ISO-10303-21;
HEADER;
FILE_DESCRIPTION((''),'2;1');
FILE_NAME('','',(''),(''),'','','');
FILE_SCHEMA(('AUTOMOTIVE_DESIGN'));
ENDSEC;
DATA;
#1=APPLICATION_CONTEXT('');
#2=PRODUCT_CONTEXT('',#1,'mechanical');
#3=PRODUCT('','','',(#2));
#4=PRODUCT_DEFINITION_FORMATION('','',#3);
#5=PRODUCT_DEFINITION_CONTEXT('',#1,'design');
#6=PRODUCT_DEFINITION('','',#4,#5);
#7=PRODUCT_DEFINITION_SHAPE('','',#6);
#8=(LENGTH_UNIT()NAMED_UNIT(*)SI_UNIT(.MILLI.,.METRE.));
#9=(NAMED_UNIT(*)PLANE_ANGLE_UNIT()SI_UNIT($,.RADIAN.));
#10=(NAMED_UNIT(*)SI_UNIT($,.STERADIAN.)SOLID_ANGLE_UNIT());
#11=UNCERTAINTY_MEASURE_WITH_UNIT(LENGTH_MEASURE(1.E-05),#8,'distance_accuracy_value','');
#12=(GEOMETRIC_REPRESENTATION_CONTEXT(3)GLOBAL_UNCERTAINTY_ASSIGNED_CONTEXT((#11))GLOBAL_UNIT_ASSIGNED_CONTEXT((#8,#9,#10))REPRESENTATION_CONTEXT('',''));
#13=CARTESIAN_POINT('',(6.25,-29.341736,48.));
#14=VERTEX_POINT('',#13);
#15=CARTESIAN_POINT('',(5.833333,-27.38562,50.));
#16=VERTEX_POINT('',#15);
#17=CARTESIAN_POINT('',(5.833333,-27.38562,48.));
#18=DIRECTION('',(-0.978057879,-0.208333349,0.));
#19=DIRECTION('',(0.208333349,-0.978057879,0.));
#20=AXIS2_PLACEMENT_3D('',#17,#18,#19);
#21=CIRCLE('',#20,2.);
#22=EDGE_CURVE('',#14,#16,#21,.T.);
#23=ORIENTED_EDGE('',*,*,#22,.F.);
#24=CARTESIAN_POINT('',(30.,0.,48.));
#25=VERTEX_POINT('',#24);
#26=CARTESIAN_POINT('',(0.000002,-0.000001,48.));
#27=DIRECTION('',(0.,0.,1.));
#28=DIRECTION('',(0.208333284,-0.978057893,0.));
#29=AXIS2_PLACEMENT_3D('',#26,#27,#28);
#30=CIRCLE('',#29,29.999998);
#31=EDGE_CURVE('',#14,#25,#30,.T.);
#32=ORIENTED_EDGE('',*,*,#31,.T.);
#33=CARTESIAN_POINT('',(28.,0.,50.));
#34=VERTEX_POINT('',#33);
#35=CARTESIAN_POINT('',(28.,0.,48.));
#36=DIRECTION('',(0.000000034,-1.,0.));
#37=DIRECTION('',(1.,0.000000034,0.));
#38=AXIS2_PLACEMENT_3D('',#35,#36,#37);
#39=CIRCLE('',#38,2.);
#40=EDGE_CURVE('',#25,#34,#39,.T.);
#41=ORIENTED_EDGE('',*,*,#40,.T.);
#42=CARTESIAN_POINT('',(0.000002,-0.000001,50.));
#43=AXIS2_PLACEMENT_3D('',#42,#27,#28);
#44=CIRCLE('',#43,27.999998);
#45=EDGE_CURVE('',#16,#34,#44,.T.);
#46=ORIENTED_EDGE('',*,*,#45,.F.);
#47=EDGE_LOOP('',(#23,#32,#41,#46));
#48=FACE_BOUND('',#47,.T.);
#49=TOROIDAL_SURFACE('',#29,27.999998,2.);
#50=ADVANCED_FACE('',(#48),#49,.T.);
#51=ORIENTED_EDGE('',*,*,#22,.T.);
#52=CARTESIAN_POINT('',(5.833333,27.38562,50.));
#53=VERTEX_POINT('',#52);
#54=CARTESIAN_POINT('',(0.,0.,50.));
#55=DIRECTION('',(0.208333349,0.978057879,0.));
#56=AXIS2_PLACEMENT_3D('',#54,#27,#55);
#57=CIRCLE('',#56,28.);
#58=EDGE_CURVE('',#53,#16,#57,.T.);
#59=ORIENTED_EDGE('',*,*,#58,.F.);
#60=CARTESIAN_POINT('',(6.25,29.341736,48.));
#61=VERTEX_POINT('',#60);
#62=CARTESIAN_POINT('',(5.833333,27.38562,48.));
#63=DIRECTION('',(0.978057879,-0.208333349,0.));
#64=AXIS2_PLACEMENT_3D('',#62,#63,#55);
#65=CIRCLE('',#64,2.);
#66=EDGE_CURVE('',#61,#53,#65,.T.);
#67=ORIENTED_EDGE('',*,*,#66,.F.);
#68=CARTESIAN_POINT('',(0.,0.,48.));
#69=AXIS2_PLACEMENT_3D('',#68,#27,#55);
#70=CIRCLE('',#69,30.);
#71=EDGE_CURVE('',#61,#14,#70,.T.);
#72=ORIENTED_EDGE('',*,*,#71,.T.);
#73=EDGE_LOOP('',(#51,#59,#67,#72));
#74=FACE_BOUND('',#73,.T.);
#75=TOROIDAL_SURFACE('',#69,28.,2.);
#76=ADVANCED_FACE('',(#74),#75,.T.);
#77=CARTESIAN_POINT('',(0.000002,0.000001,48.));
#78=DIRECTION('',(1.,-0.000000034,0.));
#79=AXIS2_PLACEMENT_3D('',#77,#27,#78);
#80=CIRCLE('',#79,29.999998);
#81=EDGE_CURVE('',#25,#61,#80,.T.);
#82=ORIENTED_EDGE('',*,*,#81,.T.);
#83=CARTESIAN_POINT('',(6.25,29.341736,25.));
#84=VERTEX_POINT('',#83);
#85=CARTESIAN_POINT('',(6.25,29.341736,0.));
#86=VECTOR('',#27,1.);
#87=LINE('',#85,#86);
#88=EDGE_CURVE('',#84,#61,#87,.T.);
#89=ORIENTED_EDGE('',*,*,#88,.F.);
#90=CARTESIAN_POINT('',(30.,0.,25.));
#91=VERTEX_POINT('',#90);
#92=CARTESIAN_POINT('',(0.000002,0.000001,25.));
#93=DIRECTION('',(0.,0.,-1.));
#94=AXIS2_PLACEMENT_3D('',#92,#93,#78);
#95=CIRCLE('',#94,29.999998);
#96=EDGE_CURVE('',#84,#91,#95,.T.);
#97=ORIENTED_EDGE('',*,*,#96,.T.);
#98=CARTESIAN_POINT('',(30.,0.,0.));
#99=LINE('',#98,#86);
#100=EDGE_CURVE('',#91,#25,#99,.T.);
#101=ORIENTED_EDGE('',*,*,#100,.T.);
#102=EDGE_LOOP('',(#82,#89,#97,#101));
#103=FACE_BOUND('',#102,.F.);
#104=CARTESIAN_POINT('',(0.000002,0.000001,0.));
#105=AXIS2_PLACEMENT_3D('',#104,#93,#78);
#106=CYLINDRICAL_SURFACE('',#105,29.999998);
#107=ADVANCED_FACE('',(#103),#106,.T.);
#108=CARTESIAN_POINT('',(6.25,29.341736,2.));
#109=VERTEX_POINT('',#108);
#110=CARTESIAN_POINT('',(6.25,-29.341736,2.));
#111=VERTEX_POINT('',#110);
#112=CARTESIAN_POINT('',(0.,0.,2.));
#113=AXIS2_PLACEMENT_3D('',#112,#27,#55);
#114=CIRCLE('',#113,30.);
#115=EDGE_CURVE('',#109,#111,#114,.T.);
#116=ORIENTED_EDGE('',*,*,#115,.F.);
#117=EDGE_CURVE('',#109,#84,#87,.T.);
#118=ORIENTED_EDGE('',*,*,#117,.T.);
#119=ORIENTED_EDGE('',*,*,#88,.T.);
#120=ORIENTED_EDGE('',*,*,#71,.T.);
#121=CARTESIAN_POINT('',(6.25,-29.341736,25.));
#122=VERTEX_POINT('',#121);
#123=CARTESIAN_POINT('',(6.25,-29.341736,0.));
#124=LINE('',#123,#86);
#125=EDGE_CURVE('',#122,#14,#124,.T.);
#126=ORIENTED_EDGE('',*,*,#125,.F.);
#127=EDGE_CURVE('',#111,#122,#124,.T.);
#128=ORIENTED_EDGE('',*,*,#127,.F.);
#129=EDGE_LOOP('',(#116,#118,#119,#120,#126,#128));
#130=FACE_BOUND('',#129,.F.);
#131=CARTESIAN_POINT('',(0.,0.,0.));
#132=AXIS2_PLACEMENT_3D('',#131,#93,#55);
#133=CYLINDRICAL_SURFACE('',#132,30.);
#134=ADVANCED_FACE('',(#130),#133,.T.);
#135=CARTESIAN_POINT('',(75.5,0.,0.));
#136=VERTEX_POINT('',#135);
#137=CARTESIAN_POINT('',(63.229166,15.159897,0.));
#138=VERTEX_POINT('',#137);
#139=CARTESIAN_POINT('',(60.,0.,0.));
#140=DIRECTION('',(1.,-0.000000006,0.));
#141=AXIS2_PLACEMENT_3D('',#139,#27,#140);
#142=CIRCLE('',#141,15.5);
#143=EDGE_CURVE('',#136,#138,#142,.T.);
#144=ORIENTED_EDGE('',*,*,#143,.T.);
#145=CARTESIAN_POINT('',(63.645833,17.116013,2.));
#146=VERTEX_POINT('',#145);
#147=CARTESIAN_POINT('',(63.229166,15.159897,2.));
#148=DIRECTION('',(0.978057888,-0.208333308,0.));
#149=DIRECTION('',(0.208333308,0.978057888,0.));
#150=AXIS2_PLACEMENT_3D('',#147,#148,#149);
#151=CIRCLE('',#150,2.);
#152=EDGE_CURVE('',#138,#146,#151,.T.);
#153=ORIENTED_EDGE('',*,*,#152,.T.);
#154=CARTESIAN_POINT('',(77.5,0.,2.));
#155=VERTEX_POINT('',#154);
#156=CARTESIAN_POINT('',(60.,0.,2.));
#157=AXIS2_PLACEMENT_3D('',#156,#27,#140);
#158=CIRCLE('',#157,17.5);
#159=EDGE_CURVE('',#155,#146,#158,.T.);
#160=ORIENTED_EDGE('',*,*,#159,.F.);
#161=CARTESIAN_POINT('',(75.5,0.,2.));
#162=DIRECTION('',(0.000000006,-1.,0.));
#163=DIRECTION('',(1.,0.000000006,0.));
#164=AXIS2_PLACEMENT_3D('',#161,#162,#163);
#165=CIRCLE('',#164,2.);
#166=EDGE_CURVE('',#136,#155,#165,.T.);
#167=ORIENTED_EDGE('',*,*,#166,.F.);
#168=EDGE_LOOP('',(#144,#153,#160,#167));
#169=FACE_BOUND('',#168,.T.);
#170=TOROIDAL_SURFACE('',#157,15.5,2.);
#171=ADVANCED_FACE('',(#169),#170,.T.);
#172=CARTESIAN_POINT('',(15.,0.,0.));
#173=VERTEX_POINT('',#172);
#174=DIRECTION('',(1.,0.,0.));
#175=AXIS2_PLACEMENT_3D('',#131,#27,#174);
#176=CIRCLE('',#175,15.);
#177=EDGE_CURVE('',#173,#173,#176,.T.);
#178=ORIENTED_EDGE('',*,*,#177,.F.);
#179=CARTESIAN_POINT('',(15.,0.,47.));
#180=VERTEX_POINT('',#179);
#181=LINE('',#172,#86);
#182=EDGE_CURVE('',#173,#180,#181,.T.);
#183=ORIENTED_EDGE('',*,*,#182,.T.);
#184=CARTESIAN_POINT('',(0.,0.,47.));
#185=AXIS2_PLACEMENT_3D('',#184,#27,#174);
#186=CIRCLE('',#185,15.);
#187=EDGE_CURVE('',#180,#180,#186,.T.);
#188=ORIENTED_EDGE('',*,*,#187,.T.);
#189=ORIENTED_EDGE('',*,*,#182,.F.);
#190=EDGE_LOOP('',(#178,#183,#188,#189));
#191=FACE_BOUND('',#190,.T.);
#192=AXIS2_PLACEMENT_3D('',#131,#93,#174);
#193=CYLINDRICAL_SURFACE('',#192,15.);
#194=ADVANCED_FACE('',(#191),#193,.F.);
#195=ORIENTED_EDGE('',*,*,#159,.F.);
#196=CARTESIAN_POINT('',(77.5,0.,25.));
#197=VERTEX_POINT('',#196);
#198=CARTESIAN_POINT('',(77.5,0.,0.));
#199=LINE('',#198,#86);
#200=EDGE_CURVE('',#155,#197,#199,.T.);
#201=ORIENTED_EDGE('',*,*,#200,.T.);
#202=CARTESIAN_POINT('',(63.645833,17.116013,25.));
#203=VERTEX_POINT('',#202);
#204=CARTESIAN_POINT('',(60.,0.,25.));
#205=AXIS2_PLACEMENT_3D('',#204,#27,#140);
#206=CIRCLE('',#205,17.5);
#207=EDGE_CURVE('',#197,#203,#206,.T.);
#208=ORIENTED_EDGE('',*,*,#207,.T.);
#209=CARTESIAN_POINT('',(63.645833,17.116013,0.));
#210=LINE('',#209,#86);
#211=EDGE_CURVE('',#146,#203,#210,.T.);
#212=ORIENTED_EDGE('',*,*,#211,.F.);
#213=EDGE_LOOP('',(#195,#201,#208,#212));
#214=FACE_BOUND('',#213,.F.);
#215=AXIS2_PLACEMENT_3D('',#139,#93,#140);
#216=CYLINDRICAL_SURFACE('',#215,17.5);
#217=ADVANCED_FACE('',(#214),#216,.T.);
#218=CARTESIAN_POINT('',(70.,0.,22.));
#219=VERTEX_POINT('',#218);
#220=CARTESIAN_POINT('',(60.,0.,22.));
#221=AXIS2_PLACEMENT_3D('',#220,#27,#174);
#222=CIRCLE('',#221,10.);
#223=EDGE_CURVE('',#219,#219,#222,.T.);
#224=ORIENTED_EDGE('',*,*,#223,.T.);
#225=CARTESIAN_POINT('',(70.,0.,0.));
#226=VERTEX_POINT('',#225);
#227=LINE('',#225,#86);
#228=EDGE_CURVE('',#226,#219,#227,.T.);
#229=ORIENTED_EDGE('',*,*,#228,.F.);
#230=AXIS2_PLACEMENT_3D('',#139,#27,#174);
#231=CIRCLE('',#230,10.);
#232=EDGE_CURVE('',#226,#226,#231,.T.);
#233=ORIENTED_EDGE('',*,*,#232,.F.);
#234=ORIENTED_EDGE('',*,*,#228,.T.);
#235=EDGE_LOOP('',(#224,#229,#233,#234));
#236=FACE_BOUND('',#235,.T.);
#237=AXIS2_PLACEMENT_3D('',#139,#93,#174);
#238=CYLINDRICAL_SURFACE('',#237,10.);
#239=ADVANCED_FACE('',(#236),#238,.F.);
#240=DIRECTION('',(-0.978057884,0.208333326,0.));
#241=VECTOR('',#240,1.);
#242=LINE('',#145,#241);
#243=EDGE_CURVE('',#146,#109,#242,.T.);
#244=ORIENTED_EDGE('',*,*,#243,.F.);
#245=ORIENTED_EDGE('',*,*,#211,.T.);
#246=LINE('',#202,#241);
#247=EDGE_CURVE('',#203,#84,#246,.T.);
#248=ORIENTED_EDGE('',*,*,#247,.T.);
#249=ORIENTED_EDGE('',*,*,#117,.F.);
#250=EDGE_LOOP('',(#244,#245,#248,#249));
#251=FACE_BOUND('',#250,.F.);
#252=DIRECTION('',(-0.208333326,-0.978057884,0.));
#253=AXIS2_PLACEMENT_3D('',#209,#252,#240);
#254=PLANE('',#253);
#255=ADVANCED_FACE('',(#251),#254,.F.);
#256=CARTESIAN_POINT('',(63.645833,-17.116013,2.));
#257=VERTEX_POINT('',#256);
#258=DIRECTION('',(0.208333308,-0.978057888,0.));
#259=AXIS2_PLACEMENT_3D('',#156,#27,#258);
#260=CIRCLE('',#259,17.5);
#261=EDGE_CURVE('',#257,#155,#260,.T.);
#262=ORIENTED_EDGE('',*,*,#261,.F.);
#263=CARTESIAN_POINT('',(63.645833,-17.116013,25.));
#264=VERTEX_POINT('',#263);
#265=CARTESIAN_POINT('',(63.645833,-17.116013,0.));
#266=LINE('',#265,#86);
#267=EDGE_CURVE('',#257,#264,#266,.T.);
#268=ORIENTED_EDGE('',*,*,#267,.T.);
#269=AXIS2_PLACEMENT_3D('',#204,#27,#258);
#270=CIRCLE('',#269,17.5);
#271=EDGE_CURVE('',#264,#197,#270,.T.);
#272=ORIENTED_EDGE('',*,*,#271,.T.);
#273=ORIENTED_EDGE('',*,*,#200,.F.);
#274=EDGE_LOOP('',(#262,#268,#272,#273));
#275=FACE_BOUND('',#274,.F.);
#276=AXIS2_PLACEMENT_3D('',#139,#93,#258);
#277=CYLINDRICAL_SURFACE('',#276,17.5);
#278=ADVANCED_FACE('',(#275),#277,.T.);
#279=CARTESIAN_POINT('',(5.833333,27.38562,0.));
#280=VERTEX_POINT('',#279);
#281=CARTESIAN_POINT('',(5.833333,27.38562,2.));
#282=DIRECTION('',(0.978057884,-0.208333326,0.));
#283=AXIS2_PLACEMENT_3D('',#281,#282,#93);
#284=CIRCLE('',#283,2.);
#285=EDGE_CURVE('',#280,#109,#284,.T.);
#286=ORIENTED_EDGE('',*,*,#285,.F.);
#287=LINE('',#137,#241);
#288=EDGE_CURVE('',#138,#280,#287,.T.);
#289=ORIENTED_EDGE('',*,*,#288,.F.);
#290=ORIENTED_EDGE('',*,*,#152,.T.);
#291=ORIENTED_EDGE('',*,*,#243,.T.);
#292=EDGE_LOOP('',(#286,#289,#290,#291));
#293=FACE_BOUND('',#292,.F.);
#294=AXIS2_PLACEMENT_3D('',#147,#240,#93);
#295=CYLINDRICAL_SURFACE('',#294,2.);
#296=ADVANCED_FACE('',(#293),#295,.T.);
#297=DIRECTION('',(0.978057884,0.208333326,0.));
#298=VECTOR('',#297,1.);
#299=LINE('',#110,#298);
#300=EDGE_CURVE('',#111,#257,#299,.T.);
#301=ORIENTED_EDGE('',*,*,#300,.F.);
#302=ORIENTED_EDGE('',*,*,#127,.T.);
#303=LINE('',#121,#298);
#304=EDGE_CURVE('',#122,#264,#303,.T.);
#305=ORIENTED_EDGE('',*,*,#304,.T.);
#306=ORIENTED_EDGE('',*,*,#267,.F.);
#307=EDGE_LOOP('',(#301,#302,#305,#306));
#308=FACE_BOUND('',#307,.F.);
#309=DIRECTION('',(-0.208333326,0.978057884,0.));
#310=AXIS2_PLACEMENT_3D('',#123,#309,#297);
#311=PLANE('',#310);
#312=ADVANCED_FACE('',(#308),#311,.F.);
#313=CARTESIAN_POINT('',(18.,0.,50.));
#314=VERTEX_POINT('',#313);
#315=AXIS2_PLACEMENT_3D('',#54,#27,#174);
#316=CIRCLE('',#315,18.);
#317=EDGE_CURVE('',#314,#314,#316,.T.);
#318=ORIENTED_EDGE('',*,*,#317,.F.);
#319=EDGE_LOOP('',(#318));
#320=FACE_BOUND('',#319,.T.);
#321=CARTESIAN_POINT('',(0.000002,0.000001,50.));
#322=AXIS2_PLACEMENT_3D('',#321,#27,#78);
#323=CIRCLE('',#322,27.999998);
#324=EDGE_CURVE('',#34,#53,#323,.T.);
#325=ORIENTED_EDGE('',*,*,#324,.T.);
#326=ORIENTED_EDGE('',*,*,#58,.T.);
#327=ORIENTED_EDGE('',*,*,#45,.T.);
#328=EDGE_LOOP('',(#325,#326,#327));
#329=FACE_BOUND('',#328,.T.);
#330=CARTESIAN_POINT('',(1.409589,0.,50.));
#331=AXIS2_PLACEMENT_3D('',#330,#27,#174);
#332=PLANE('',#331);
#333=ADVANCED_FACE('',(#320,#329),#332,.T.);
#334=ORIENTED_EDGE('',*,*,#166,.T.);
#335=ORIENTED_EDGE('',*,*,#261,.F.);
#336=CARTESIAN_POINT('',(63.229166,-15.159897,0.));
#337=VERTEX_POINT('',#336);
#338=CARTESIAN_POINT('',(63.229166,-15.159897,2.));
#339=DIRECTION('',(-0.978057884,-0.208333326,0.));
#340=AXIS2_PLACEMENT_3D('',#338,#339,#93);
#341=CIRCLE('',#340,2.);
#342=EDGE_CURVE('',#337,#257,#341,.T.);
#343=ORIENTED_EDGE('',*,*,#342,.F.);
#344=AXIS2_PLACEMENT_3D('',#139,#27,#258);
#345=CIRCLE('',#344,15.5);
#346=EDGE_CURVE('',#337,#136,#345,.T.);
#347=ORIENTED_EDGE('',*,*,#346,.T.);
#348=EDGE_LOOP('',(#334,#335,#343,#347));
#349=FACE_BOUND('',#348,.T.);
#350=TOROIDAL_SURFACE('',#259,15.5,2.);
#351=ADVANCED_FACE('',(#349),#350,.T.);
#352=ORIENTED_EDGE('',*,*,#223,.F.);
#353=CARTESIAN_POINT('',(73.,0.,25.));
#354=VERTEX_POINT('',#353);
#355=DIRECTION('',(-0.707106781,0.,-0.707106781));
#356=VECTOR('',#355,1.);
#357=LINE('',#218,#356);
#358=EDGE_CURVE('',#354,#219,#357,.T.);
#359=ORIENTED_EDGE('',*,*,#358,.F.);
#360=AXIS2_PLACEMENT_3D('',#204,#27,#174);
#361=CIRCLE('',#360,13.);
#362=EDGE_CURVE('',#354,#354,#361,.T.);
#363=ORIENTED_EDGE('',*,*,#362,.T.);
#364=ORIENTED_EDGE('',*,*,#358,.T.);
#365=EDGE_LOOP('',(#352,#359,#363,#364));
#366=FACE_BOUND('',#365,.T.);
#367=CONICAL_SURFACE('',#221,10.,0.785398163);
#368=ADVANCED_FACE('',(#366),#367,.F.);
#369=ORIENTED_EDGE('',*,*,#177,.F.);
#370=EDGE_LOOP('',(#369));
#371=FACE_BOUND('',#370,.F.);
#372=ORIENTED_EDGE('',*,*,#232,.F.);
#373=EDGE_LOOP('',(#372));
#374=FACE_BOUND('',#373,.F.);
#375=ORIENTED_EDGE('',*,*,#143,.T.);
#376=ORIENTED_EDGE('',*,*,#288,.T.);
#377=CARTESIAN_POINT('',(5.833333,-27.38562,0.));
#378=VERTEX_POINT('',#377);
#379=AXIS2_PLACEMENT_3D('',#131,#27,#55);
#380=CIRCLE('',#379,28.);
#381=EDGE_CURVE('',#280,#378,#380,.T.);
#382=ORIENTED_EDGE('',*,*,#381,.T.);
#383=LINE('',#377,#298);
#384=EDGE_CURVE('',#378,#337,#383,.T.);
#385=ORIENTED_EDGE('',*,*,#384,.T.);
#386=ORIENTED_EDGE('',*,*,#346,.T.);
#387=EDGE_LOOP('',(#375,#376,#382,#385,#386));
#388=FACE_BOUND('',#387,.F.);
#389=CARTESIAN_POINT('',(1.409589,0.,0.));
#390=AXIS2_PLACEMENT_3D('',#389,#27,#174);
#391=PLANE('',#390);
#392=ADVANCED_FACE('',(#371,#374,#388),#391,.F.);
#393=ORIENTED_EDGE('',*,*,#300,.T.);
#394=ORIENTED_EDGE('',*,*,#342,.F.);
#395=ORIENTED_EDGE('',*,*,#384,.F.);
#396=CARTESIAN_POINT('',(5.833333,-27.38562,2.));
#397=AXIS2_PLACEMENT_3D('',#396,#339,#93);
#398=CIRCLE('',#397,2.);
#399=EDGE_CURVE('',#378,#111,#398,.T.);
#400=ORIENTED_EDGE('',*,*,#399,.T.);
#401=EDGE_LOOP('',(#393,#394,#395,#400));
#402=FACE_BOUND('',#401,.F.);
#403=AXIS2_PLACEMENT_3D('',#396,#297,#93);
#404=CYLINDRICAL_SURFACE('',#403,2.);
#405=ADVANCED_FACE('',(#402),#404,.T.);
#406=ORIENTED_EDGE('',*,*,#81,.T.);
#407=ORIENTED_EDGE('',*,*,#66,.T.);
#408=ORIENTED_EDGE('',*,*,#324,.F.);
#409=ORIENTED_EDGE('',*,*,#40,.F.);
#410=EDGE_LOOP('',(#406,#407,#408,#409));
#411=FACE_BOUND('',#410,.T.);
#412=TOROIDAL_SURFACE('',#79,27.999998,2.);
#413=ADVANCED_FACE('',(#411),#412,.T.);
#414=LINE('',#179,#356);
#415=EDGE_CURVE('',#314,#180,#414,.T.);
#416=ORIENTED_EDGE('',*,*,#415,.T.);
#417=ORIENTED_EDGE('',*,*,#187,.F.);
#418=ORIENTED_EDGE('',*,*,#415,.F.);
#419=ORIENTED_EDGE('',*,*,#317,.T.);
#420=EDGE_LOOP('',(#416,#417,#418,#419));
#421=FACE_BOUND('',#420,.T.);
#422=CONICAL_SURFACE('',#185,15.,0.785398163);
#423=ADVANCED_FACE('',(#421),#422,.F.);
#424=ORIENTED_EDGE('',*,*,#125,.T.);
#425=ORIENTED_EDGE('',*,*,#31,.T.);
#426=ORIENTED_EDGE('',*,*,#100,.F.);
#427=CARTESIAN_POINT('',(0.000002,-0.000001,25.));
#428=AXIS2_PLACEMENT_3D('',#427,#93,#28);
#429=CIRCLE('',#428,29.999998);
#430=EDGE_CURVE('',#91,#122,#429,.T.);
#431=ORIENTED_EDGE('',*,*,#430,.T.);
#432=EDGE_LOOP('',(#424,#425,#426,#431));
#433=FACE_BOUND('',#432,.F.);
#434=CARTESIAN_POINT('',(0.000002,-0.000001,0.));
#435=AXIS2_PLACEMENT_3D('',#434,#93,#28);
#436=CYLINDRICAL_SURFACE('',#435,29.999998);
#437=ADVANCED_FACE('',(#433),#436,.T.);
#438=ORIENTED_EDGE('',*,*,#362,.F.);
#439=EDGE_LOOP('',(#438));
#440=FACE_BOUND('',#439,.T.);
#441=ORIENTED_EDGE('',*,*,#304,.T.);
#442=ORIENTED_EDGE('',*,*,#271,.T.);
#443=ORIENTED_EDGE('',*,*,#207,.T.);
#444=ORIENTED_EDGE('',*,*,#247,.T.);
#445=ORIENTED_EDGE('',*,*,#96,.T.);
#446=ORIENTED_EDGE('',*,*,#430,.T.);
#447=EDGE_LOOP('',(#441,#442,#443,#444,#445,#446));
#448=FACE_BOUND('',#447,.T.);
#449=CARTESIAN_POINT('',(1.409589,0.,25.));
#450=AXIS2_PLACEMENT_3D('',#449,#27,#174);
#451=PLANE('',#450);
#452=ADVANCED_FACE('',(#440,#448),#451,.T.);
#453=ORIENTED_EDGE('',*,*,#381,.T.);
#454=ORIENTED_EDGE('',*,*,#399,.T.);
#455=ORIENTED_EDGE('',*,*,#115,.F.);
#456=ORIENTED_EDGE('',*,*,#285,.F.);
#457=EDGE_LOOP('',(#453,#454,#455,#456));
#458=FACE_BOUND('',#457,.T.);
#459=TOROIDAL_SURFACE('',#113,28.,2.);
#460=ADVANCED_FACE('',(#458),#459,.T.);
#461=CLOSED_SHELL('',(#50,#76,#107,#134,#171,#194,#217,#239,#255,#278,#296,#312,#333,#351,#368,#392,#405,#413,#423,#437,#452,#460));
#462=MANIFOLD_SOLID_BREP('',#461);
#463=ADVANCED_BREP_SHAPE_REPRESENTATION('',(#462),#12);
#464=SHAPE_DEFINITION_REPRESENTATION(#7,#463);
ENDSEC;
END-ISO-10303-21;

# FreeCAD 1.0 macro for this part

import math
import FreeCAD as App
import Part
import Sketcher

V = App.Vector


def edges_at(feature, points):
    """Names of the edges that pass closest to the given points."""
    edges = feature.Shape.Edges
    near = lambda p: min(range(len(edges)), key=lambda i: edges[i].distToShape(Part.Vertex(*p))[0])
    return sorted({f"Edge{near(p) + 1}" for p in points})

doc = App.newDocument("Part")
body = doc.addObject("PartDesign::Body", "Body")

sketch1 = doc.addObject("Sketcher::SketchObject", "Sketch")
body.addObject(sketch1)
sketch1.AttachmentSupport = (doc.XY_Plane, [""])
sketch1.MapMode = "FlatFace"
sketch1.addGeometry(Part.ArcOfCircle(Part.Circle(V(0, 0, 0), V(0, 0, 1), 30), math.radians(77.9753), math.radians(282.0247)), False)
sketch1.addGeometry(Part.LineSegment(V(6.25, -29.341736, 0), V(63.645833, -17.116013, 0)), False)
sketch1.addGeometry(Part.ArcOfCircle(Part.Circle(V(60, 0, 0), V(0, 0, 1), 17.5), math.radians(-77.975302), math.radians(0)), False)
sketch1.addGeometry(Part.ArcOfCircle(Part.Circle(V(60, 0, 0), V(0, 0, 1), 17.5), math.radians(0), math.radians(77.975302)), False)
sketch1.addGeometry(Part.LineSegment(V(63.645833, 17.116013, 0), V(6.25, 29.341736, 0)), False)
sketch1.addGeometry(Part.Circle(V(0, 0, 0), V(0, 0, 1), 15), False)
sketch1.addGeometry(Part.Circle(V(60, 0, 0), V(0, 0, 1), 10), False)
sketch1.addConstraint(Sketcher.Constraint("Tangent", 0, 2, 1, 1))
sketch1.addConstraint(Sketcher.Constraint("Tangent", 1, 2, 2, 1))
sketch1.addConstraint(Sketcher.Constraint("Tangent", 2, 2, 3, 1))
sketch1.addConstraint(Sketcher.Constraint("Tangent", 3, 2, 4, 1))
sketch1.addConstraint(Sketcher.Constraint("Tangent", 4, 2, 0, 1))
sketch1.addConstraint(Sketcher.Constraint("Coincident", 0, 3, -1, 1))
sketch1.addConstraint(Sketcher.Constraint("Coincident", 5, 3, -1, 1))
sketch1.addConstraint(Sketcher.Constraint("Coincident", 6, 3, 2, 3))
sketch1.addConstraint(Sketcher.Constraint("Equal", 2, 3))
sketch1.addConstraint(Sketcher.Constraint("PointOnObject", 2, 3, -1))
sketch1.addConstraint(Sketcher.Constraint("PointOnObject", 2, 2, -1))
sketch1.addConstraint(Sketcher.Constraint("Diameter", 5, 30.0))
sketch1.addConstraint(Sketcher.Constraint("Diameter", 6, 20.0))
sketch1.addConstraint(Sketcher.Constraint("Radius", 0, 30.0))
sketch1.addConstraint(Sketcher.Constraint("Radius", 2, 17.5))
sketch1.addConstraint(Sketcher.Constraint("DistanceX", -1, 1, 2, 3, 60.0))
pad1 = doc.addObject("PartDesign::Pad", "Pad")
body.addObject(pad1)
pad1.Profile = sketch1
pad1.Length = 25

sketch2 = doc.addObject("Sketcher::SketchObject", "Sketch001")
body.addObject(sketch2)
sketch2.AttachmentSupport = (doc.XY_Plane, [""])
sketch2.MapMode = "FlatFace"
sketch2.addGeometry(Part.ArcOfCircle(Part.Circle(V(0.000002, -0.000001, 0), V(0, 0, 1), 29.999998), math.radians(-77.975304), math.radians(0.000002)), False)
sketch2.addGeometry(Part.ArcOfCircle(Part.Circle(V(0.000002, 0.000001, 0), V(0, 0, 1), 29.999998), math.radians(-0.000002), math.radians(77.975304)), False)
sketch2.addGeometry(Part.ArcOfCircle(Part.Circle(V(0, 0, 0), V(0, 0, 1), 30), math.radians(77.9753), math.radians(282.0247)), False)
sketch2.addGeometry(Part.Circle(V(0, 0, 0), V(0, 0, 1), 15), False)
sketch2.addConstraint(Sketcher.Constraint("Tangent", 0, 2, 1, 1))
sketch2.addConstraint(Sketcher.Constraint("Tangent", 1, 2, 2, 1))
sketch2.addConstraint(Sketcher.Constraint("Tangent", 2, 2, 0, 1))
sketch2.addConstraint(Sketcher.Constraint("Coincident", 0, 3, -1, 1))
sketch2.addConstraint(Sketcher.Constraint("Coincident", 3, 3, -1, 1))
sketch2.addConstraint(Sketcher.Constraint("PointOnObject", 0, 2, -1))
sketch2.addConstraint(Sketcher.Constraint("Vertical", 1, 2, 2, 2))
sketch2.addConstraint(Sketcher.Constraint("Diameter", 3, 30.0))
sketch2.addConstraint(Sketcher.Constraint("Radius", 0, 29.999998))
sketch2.addConstraint(Sketcher.Constraint("DistanceX", -1, 1, 1, 2, 6.25))
pad2 = doc.addObject("PartDesign::Pad", "Pad001")
body.addObject(pad2)
pad2.Profile = sketch2
pad2.Length = 50
doc.recompute()

fillet = doc.addObject("PartDesign::Fillet", "Fillet")
body.addObject(fillet)
fillet.Base = (pad2, edges_at(pad2, [(-30, 0, 50), (34.948, -23.229, 0)]))
fillet.Radius = 2
doc.recompute()

chamfer = doc.addObject("PartDesign::Chamfer", "Chamfer")
body.addObject(chamfer)
chamfer.Base = (fillet, edges_at(fillet, [(50, 0, 25), (-15, 0, 50)]))
chamfer.Size = 3

doc.recompute()
